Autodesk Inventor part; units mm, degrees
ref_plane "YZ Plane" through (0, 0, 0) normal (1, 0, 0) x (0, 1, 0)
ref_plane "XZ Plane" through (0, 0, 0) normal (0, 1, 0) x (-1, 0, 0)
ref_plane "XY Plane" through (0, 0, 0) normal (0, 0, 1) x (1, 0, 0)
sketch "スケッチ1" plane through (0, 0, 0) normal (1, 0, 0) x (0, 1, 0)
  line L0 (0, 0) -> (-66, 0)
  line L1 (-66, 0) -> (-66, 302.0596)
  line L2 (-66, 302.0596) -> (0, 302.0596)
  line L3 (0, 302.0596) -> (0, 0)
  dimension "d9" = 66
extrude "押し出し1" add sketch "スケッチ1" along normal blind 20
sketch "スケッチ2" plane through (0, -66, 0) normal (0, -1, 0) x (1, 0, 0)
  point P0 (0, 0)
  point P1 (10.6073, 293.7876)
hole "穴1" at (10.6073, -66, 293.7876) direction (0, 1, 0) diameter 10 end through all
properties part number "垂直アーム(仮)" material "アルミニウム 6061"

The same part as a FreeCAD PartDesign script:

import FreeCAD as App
import Part
import Sketcher

V = App.Vector
Q = App.Units.Quantity

doc = App.newDocument("Part")
params = doc.addObject("Spreadsheet::Sheet", "Params")
for row, (alias, value) in enumerate([
    ("sketch1_width", "66 mm"),
    ("pad1_length", "20 mm"),
    ("sketch2_diameter", "10 mm"),
    ("hole_diameter", "10 mm"),
], start=1):
    params.set(f"A{row}", alias)
    params.set(f"B{row}", "=" + value)
    params.setAlias(f"B{row}", alias)

body = doc.addObject("PartDesign::Body", "Body")

# Sketch on YZ plane
sketch1 = body.newObject("Sketcher::SketchObject", "Sketch")
sketch1.AttachmentSupport = (doc.getObject("YZ_Plane"), [""])
sketch1.MapMode = "FlatFace"
sketch1.addGeometry([
    Part.LineSegment(V(-66, 0, 0), V(0, 0, 0)),
    Part.LineSegment(V(0, 0, 0), V(0, 302.0596, 0)),
    Part.LineSegment(V(0, 302.0596, 0), V(-66, 302.0596, 0)),
    Part.LineSegment(V(-66, 302.0596, 0), V(-66, 0, 0)),
], False)
sketch1.addConstraint([
    Sketcher.Constraint("Coincident", 0, 2, 1, 1),
    Sketcher.Constraint("Coincident", 1, 2, 2, 1),
    Sketcher.Constraint("Coincident", 2, 2, 3, 1),
    Sketcher.Constraint("Coincident", 3, 2, 0, 1),
    Sketcher.Constraint("Horizontal", 0),
    Sketcher.Constraint("Vertical", 1),
    Sketcher.Constraint("Horizontal", 2),
    Sketcher.Constraint("Vertical", 3),
    Sketcher.Constraint("Coincident", 0, 2, -1, 1),
    Sketcher.Constraint("DistanceX", 0, 1, 0, 2, Q("66 mm")),
    Sketcher.Constraint("DistanceY", 1, 1, 1, 2, Q("302.0596 mm")),
])
sketch1.setExpression("Constraints[9]", "Params.sketch1_width")
pad1 = body.newObject("PartDesign::Pad", "Pad")
pad1.Profile = sketch1
pad1.setExpression("Length", "Params.pad1_length")

# Sketch on XZ plane
sketch2 = body.newObject("Sketcher::SketchObject", "Sketch001")
sketch2.AttachmentSupport = (doc.getObject("XZ_Plane"), [""])
sketch2.MapMode = "FlatFace"
sketch2.AttachmentOffset = App.Placement(V(0, 0, 66), App.Rotation())
sketch2.addGeometry(Part.Circle(V(10.6073, 293.7876, 0), V(0, 0, 1), 5), False)
sketch2.addConstraint([
    Sketcher.Constraint("Diameter", 0, Q("10 mm")),
    Sketcher.Constraint("DistanceX", -1, 1, 0, 3, Q("10.6073 mm")),
    Sketcher.Constraint("DistanceY", -1, 1, 0, 3, Q("293.7876 mm")),
])
sketch2.setExpression("Constraints[0]", "Params.sketch2_diameter")
doc.recompute()
hole = body.newObject("PartDesign::Hole", "Hole")
hole.Profile = sketch2
hole.ThreadType = "None"
hole.setExpression("Diameter", "Params.hole_diameter")
hole.DepthType = "ThroughAll"

doc.recompute()
